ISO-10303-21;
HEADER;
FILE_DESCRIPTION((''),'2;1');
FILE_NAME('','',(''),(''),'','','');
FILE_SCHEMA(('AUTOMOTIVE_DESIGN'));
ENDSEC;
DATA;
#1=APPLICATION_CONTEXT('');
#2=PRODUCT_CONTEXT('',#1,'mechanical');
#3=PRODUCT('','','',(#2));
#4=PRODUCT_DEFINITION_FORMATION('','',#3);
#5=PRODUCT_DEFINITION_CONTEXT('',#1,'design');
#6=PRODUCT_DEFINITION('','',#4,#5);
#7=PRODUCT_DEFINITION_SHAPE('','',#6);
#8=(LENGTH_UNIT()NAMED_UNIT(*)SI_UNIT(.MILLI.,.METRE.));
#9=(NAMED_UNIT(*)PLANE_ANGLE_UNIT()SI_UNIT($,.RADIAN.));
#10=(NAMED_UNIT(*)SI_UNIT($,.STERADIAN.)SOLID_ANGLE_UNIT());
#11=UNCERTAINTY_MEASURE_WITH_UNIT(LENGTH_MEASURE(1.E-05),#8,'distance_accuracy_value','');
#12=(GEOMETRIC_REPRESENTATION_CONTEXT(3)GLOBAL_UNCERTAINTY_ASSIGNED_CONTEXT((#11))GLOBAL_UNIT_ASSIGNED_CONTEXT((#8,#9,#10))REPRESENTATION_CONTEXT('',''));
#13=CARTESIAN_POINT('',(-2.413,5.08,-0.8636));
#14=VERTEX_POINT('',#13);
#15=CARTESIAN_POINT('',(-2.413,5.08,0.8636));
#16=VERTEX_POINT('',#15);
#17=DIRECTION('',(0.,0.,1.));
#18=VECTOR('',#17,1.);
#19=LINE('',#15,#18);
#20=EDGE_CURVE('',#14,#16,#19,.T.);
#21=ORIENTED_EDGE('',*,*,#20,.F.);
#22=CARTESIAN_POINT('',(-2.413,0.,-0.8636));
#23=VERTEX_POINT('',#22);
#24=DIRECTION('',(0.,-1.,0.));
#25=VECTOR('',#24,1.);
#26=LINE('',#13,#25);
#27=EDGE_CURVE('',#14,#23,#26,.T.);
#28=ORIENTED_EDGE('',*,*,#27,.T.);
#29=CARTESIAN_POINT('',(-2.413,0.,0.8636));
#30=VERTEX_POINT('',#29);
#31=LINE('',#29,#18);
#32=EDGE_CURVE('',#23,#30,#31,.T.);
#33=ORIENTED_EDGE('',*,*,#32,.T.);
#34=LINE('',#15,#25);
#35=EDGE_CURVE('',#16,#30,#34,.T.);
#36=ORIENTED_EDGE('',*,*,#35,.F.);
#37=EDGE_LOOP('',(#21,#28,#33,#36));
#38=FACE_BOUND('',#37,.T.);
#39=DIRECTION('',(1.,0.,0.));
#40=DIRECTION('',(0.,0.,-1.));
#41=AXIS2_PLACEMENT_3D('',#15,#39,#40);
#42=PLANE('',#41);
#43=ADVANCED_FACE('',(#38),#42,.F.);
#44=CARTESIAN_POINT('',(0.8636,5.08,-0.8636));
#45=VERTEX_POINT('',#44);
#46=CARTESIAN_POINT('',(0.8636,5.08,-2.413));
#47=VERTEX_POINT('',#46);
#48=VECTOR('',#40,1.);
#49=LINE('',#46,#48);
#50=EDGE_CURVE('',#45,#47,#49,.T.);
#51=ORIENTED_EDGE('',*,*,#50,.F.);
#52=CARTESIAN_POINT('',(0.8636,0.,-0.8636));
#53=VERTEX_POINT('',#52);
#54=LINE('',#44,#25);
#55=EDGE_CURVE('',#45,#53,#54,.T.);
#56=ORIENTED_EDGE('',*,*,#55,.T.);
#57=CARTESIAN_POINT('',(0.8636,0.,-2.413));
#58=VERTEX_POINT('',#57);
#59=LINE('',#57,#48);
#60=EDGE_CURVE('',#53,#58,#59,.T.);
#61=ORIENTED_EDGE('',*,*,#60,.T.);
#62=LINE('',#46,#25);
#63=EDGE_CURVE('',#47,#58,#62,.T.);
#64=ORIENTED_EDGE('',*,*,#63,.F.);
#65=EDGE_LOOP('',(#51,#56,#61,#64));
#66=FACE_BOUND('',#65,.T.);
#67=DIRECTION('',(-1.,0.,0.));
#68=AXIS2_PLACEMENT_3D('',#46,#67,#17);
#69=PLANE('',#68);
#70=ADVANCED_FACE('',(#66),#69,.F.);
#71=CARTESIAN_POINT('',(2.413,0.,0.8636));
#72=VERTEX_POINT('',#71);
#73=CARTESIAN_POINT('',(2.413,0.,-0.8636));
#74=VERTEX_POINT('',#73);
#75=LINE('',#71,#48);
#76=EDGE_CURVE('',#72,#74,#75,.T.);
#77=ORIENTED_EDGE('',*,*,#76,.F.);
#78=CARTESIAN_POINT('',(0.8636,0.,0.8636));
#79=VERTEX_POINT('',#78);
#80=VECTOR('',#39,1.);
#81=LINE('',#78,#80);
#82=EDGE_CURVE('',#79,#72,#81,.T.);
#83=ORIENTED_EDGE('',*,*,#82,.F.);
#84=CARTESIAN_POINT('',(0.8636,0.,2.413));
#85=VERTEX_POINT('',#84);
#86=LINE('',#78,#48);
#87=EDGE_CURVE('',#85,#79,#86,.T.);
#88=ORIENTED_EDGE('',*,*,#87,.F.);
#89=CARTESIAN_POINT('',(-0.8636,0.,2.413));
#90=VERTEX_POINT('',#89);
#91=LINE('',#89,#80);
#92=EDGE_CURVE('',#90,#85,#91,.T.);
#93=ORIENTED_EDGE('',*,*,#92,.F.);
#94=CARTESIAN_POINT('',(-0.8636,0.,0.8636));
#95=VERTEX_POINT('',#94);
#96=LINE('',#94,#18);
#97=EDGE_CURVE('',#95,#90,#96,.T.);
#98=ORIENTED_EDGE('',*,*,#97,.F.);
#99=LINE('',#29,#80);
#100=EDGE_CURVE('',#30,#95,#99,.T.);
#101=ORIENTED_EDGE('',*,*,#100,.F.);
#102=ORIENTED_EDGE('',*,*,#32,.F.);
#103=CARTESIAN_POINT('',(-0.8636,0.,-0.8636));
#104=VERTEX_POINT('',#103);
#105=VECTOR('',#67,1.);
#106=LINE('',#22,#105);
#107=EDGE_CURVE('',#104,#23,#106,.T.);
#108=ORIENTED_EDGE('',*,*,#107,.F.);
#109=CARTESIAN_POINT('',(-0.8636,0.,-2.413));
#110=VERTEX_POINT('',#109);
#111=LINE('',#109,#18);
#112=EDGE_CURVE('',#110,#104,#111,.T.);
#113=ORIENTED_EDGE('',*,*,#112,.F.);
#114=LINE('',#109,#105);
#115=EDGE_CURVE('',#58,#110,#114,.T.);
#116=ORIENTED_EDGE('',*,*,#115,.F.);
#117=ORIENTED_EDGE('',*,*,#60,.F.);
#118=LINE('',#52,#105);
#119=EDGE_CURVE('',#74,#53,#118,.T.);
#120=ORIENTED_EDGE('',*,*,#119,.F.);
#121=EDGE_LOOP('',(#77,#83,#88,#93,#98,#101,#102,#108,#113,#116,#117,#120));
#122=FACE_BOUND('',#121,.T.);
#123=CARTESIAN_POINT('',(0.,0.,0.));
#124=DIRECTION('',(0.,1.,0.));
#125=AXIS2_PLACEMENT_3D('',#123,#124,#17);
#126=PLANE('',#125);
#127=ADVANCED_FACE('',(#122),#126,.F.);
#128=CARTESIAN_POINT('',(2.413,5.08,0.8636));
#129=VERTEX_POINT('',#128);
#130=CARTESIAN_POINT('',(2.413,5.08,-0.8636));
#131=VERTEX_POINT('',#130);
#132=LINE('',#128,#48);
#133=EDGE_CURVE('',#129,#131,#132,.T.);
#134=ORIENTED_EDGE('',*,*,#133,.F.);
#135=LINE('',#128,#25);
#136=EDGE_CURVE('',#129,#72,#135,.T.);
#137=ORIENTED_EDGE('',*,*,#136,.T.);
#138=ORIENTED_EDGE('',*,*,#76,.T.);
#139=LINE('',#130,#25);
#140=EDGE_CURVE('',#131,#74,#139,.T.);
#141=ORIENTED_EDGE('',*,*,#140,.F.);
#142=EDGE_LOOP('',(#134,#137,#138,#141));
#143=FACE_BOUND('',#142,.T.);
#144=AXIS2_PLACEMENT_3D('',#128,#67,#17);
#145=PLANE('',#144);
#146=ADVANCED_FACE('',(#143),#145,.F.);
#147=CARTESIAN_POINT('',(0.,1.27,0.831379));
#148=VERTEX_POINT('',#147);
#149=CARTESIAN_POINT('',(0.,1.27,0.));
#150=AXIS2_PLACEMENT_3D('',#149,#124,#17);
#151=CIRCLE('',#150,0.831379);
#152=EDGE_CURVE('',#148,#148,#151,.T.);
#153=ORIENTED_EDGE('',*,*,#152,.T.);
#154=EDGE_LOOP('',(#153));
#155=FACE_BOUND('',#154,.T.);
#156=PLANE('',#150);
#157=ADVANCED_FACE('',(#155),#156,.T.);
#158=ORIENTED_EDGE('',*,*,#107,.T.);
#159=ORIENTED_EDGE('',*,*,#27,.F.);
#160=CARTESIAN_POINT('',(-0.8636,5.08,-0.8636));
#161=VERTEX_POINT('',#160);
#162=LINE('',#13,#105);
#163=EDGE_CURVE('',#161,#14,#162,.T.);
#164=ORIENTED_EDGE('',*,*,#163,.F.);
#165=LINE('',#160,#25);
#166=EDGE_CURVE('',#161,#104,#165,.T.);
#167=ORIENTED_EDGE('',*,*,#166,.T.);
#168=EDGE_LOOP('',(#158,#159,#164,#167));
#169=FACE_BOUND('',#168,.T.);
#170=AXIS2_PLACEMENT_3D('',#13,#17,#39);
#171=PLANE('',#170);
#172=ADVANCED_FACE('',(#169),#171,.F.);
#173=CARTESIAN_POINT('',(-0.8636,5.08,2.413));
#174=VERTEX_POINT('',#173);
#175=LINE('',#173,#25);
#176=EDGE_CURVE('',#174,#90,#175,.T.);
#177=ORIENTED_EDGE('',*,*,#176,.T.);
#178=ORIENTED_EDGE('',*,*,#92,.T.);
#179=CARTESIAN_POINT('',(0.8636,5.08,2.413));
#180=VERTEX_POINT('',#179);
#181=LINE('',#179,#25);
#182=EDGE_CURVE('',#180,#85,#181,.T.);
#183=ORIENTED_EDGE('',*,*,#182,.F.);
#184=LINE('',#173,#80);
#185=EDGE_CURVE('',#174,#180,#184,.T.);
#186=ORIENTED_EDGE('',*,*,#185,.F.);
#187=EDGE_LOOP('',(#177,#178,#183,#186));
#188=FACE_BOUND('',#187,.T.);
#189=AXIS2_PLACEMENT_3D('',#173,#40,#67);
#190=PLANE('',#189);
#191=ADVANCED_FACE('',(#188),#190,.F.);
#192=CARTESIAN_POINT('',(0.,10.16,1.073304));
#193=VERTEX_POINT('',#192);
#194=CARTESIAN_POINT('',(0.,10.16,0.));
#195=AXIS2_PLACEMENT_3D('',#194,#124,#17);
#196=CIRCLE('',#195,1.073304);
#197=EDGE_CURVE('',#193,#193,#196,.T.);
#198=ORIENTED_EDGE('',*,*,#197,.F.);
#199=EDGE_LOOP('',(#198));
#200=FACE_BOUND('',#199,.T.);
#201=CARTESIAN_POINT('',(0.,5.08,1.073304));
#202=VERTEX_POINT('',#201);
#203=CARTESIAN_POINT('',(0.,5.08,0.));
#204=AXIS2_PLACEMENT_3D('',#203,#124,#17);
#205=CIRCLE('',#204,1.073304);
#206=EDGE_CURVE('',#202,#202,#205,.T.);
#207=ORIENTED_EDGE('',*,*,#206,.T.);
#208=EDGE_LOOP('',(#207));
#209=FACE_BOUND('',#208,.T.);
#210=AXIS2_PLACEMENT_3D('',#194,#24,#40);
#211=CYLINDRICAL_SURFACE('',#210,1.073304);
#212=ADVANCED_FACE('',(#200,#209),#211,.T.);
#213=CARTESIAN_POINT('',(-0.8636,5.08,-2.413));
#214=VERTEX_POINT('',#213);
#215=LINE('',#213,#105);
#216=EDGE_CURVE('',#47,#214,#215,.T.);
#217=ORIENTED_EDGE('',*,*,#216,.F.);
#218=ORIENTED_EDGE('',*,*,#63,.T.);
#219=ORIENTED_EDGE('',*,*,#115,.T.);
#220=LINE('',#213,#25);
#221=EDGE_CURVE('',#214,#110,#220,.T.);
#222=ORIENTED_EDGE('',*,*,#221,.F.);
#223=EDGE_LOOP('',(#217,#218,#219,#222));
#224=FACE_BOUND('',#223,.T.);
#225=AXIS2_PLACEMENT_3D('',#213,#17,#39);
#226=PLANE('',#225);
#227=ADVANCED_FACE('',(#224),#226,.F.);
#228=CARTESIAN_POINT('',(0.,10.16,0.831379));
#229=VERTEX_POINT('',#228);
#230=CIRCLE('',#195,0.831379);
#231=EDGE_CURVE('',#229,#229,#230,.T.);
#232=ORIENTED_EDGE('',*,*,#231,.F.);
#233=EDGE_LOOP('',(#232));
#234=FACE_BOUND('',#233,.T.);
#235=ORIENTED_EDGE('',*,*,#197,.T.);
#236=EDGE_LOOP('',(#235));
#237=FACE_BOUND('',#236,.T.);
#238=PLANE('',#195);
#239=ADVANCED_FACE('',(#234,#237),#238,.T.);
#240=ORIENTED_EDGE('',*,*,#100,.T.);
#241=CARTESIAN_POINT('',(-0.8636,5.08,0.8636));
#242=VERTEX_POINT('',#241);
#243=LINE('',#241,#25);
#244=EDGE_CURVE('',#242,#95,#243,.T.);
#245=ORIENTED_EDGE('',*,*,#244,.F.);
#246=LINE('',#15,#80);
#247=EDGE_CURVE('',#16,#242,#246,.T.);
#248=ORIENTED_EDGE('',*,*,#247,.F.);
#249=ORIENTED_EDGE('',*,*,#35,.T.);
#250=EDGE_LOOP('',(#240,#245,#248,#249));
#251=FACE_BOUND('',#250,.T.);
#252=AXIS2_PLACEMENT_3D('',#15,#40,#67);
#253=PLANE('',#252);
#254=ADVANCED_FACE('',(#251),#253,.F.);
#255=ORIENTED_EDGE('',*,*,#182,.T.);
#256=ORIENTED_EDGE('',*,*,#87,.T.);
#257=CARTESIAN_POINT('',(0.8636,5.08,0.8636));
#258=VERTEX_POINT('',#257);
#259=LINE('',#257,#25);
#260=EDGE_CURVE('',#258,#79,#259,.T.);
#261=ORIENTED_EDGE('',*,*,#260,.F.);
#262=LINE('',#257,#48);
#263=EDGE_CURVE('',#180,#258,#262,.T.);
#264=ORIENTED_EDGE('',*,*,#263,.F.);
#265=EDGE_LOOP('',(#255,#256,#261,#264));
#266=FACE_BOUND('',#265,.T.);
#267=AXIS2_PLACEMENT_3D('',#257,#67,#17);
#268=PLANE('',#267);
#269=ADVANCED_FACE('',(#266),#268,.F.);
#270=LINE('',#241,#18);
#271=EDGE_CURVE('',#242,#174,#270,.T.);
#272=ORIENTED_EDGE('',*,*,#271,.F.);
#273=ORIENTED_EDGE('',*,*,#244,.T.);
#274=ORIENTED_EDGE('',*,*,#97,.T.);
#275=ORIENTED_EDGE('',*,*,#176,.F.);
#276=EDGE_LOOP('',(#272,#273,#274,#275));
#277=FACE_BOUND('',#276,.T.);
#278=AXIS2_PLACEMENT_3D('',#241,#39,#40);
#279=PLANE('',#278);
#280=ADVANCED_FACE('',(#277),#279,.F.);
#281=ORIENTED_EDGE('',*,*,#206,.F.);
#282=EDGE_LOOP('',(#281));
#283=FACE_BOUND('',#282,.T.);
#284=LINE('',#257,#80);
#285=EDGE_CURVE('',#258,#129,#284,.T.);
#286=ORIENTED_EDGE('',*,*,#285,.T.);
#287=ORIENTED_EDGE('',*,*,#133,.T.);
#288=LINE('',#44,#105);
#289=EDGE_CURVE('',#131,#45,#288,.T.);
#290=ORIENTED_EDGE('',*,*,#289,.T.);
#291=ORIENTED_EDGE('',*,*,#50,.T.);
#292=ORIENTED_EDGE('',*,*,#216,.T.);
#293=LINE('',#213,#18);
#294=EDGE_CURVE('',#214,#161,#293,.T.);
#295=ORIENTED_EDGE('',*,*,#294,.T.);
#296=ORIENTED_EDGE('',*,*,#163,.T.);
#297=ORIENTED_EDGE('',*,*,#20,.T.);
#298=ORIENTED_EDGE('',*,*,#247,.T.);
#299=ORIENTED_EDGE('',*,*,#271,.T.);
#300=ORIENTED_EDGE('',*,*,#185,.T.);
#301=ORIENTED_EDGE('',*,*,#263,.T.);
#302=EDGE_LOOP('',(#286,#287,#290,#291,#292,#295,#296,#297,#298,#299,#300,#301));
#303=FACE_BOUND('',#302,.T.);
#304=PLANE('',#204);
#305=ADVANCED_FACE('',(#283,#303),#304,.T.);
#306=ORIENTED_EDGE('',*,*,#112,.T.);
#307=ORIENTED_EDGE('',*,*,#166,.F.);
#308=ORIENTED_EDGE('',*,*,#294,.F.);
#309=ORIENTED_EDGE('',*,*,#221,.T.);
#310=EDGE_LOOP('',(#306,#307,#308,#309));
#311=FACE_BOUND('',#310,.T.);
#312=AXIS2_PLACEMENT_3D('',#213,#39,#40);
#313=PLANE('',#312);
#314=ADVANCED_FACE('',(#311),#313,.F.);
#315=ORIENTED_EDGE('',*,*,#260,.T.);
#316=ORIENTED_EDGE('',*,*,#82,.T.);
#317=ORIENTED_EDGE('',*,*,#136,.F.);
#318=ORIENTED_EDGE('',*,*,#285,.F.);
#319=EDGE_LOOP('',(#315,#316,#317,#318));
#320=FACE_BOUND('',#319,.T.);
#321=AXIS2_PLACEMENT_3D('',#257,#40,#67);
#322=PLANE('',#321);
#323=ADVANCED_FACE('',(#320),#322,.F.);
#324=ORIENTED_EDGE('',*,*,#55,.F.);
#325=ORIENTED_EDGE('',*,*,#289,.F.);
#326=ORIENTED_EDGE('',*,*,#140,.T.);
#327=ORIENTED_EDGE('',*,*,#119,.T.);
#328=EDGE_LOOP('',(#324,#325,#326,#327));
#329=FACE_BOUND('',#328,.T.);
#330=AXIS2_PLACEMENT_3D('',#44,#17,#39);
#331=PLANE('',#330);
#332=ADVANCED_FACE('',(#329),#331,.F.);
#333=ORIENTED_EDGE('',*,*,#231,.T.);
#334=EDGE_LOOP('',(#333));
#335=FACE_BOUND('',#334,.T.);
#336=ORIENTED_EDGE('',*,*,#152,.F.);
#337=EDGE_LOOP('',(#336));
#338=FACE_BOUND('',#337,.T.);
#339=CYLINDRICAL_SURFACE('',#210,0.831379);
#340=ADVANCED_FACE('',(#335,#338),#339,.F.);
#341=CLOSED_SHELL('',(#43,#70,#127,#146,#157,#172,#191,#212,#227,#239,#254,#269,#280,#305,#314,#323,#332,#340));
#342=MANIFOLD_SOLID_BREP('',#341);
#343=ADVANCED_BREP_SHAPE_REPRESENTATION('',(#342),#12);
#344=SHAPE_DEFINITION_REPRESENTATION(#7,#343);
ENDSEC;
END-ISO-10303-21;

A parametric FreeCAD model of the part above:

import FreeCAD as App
import Part
import Sketcher
from FreeCAD import Vector
Q = App.Units.Quantity

doc = App.newDocument("Part")
params = doc.addObject("Spreadsheet::Sheet", "Params")
for row, (alias, value) in enumerate([
    ("sketch1_width", "0.061 in"),
    ("sketch1_width2", "0.068 in"),
    ("pad1_length", "0.2 in"),
    ("pad2_length", "0.2 in"),
    ("pocket1_length", "0.15 in"),
], start=1):
    params.set(f"A{row}", alias)
    params.set(f"B{row}", "=" + value)
    params.setAlias(f"B{row}", alias)

body = doc.addObject("PartDesign::Body", "Body")

# Sketch on XZ plane
sketch1 = body.newObject("Sketcher::SketchObject", "Sketch")
sketch1.AttachmentSupport = (doc.getObject("XZ_Plane"), [""])
sketch1.MapMode = "FlatFace"
sketch1.addGeometry([
    Part.LineSegment(Vector(2.4, -0.9, 0), Vector(0.9, -0.9, 0)),  # 0
    Part.LineSegment(Vector(0.9, -0.9, 0), Vector(0.9, -2.4, 0)),  # 1
    Part.LineSegment(Vector(0.9, -2.4, 0), Vector(-0.9, -2.4, 0)),  # 2
    Part.LineSegment(Vector(-0.9, -2.4, 0), Vector(-0.9, -0.9, 0)),  # 3
    Part.LineSegment(Vector(-0.9, -0.9, 0), Vector(-2.4, -0.9, 0)),  # 4
    Part.LineSegment(Vector(-2.4, -0.9, 0), Vector(-2.4, 0.9, 0)),  # 5
    Part.LineSegment(Vector(-2.4, 0.9, 0), Vector(-0.9, 0.9, 0)),  # 6
    Part.LineSegment(Vector(-0.9, 0.9, 0), Vector(-0.9, 2.4, 0)),  # 7
    Part.LineSegment(Vector(-0.9, 2.4, 0), Vector(0.9, 2.4, 0)),  # 8
    Part.LineSegment(Vector(0.9, 2.4, 0), Vector(0.9, 0.9, 0)),  # 9
    Part.LineSegment(Vector(0.9, 0.9, 0), Vector(2.4, 0.9, 0)),  # 10
    Part.LineSegment(Vector(2.4, 0.9, 0), Vector(2.4, -0.9, 0)),  # 11
], False)
sketch1.addConstraint([
    Sketcher.Constraint("Coincident", 0, 2, 1, 1),
    Sketcher.Constraint("Coincident", 1, 2, 2, 1),
    Sketcher.Constraint("Coincident", 2, 2, 3, 1),
    Sketcher.Constraint("Coincident", 3, 2, 4, 1),
    Sketcher.Constraint("Coincident", 4, 2, 5, 1),
    Sketcher.Constraint("Coincident", 5, 2, 6, 1),
    Sketcher.Constraint("Coincident", 6, 2, 7, 1),
    Sketcher.Constraint("Coincident", 7, 2, 8, 1),
    Sketcher.Constraint("Coincident", 8, 2, 9, 1),
    Sketcher.Constraint("Coincident", 9, 2, 10, 1),
    Sketcher.Constraint("Coincident", 10, 2, 11, 1),
    Sketcher.Constraint("Coincident", 11, 2, 0, 1),
    Sketcher.Constraint("Horizontal", 0),
    Sketcher.Constraint("Vertical", 1),
    Sketcher.Constraint("Horizontal", 2),
    Sketcher.Constraint("Vertical", 3),
    Sketcher.Constraint("Horizontal", 4),
    Sketcher.Constraint("Vertical", 5),
    Sketcher.Constraint("Horizontal", 6),
    Sketcher.Constraint("Vertical", 7),
    Sketcher.Constraint("Horizontal", 8),
    Sketcher.Constraint("Vertical", 9),
    Sketcher.Constraint("Horizontal", 10),
    Sketcher.Constraint("Vertical", 11),
    Sketcher.Constraint("Symmetric", 0, 2, 6, 2, -1, 1),
    Sketcher.Constraint("Symmetric", 2, 2, 8, 2, -1, 1),
    Sketcher.Constraint("Symmetric", 4, 2, 10, 2, -1, 1),
    Sketcher.Constraint("Symmetric", 0, 2, 3, 2, -2),
    Sketcher.Constraint("Equal", 10, 1),
    Sketcher.Constraint("Equal", 8, 5),
    Sketcher.Constraint("DistanceX", 0, 2, 0, 1, Q("0.061 in")),
    Sketcher.Constraint("DistanceX", 2, 2, 2, 1, Q("0.068 in")),
])
sketch1.setExpression("Constraints[30]", "Params.sketch1_width")
sketch1.setExpression("Constraints[31]", "Params.sketch1_width2")
pad1 = body.newObject("PartDesign::Pad", "Pad")
pad1.Profile = sketch1
pad1.setExpression("Length", "Params.pad1_length")
pad1.Reversed = True

# Sketch on XZ plane
sketch2 = body.newObject("Sketcher::SketchObject", "Sketch001")
sketch2.AttachmentSupport = (doc.getObject("XZ_Plane"), [""])
sketch2.MapMode = "FlatFace"
sketch2.AttachmentOffset = App.Placement(Vector(0, 0, -0.2 * 25.4), App.Rotation())
sketch2.addGeometry([
    Part.Circle(Vector(0, 0, 0), Vector(0, 0, 1), 1.1),
    Part.Circle(Vector(0, 0, 0), Vector(0, 0, 1), 0.8),
], False)
sketch2.addConstraint([
    Sketcher.Constraint("Coincident", 0, 3, -1, 1),
    Sketcher.Constraint("Coincident", 1, 3, -1, 1),
    Sketcher.Constraint("Diameter", 0, Q("2.146607 mm")),
    Sketcher.Constraint("Diameter", 1, Q("1.662758 mm")),
])
pad2 = body.newObject("PartDesign::Pad", "Pad001")
pad2.Profile = sketch2
pad2.setExpression("Length", "Params.pad2_length")
pad2.Reversed = True

# Sketch on XZ plane
sketch3 = body.newObject("Sketcher::SketchObject", "Sketch002")
sketch3.AttachmentSupport = (doc.getObject("XZ_Plane"), [""])
sketch3.MapMode = "FlatFace"
sketch3.AttachmentOffset = App.Placement(Vector(0, 0, -0.05 * 25.4), App.Rotation())
sketch3.addGeometry(Part.Circle(Vector(0, 0, 0), Vector(0, 0, 1), 0.8), False)
sketch3.addConstraint([
    Sketcher.Constraint("Coincident", 0, 3, -1, 1),
    Sketcher.Constraint("Diameter", 0, Q("1.662758 mm")),
])
pocket1 = body.newObject("PartDesign::Pocket", "Pocket")
pocket1.Profile = sketch3
pocket1.setExpression("Length", "Params.pocket1_length")

doc.recompute()
